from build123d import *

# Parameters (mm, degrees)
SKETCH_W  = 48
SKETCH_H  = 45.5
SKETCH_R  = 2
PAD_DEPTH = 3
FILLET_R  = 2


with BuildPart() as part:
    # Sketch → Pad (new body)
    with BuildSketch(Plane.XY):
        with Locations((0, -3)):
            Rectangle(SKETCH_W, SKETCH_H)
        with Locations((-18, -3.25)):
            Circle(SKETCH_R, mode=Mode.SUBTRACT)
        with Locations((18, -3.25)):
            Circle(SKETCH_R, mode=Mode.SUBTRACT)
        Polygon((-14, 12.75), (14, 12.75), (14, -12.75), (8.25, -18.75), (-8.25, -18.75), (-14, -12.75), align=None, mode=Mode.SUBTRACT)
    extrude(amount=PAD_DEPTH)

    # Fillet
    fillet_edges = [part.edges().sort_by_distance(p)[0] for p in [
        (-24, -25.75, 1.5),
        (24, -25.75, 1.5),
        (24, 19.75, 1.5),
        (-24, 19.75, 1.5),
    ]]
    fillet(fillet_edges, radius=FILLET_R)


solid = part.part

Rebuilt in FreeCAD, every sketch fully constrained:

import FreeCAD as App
import Part
import Sketcher


def edges_at(feature, points):
    """Names of the edges that pass closest to the given points."""
    edges = feature.Shape.Edges
    near = lambda p: min(range(len(edges)), key=lambda i: edges[i].distToShape(Part.Vertex(*p))[0])
    return sorted({f"Edge{near(p) + 1}" for p in points})


def add_polygon(sketch, points):
    """Adds a closed chain of lines whose ends are joined by coincident constraints."""
    first, n = sketch.GeometryCount, len(points)
    for a, b in zip(points, points[1:] + points[:1]):
        sketch.addGeometry(Part.LineSegment(App.Vector(*a, 0), App.Vector(*b, 0)), False)
    for i in range(n):
        sketch.addConstraint(Sketcher.Constraint("Coincident", first + i, 2, first + (i + 1) % n, 1))

doc = App.newDocument("Part")
body = doc.addObject("PartDesign::Body", "Body")

# Sketch on XY plane
sketch1 = doc.addObject("Sketcher::SketchObject", "Sketch")
body.addObject(sketch1)
sketch1.AttachmentSupport = (doc.XY_Plane, [""])
sketch1.MapMode = "FlatFace"
add_polygon(sketch1, [(-24, 19.8), (-24, -25.8), (24, -25.8), (24, 19.8)])  # lines 0-3
sketch1.addGeometry(Part.Circle(App.Vector(-18, -3.2, 0), App.Vector(0, 0, 1), 2), False)  # 4
sketch1.addGeometry(Part.Circle(App.Vector(18, -3.2, 0), App.Vector(0, 0, 1), 2), False)  # 5
add_polygon(sketch1, [(-14, -12.8), (-14, 12.8), (14, 12.8), (14, -12.8), (8.2, -18.8), (-8.2, -18.8)])  # lines 6-11
sketch1.addConstraint(Sketcher.Constraint("Vertical", 0))
sketch1.addConstraint(Sketcher.Constraint("Horizontal", 1))
sketch1.addConstraint(Sketcher.Constraint("Vertical", 2))
sketch1.addConstraint(Sketcher.Constraint("Horizontal", 3))
sketch1.addConstraint(Sketcher.Constraint("Vertical", 6))
sketch1.addConstraint(Sketcher.Constraint("Horizontal", 7))
sketch1.addConstraint(Sketcher.Constraint("Vertical", 8))
sketch1.addConstraint(Sketcher.Constraint("Horizontal", 10))
sketch1.addConstraint(Sketcher.Constraint("Equal", 4, 5))
sketch1.addConstraint(Sketcher.Constraint("Symmetric", 6, 2, 8, 2, -1, 1))
sketch1.addConstraint(Sketcher.Constraint("Symmetric", 4, 3, 5, 3, -2))
sketch1.addConstraint(Sketcher.Constraint("Horizontal", 8, 2, 11, 2))
sketch1.addConstraint(Sketcher.Constraint("Equal", 9, 11))
sketch1.addConstraint(Sketcher.Constraint("Diameter", 4, 4.0))
sketch1.addConstraint(Sketcher.Constraint("DistanceX", 1, 1, 1, 2, 48.0))
sketch1.addConstraint(Sketcher.Constraint("DistanceX", 7, 1, 7, 2, 28.0))
sketch1.addConstraint(Sketcher.Constraint("DistanceX", 10, 2, 10, 1, 16.5))
sketch1.addConstraint(Sketcher.Constraint("DistanceY", 0, 2, 0, 1, 45.5))
sketch1.addConstraint(Sketcher.Constraint("DistanceY", 6, 1, 6, 2, 25.5))
sketch1.addConstraint(Sketcher.Constraint("DistanceX", 4, 3, -1, 1, 18.0))
sketch1.addConstraint(Sketcher.Constraint("DistanceX", 0, 2, -1, 1, 24.0))
sketch1.addConstraint(Sketcher.Constraint("DistanceY", 5, 3, 2, 2, 23.0))
sketch1.addConstraint(Sketcher.Constraint("DistanceY", 6, 2, 3, 2, 7.0))
sketch1.addConstraint(Sketcher.Constraint("DistanceY", 9, 2, 8, 2, 6.0))
pad1 = doc.addObject("PartDesign::Pad", "Pad")
body.addObject(pad1)
pad1.Profile = sketch1
pad1.Length = 3
doc.recompute()

fillet = doc.addObject("PartDesign::Fillet", "Fillet")
body.addObject(fillet)
fillet.Base = (pad1, edges_at(pad1, [
    (-24, -25.75, 1.5),
    (24, -25.75, 1.5),
    (24, 19.75, 1.5),
    (-24, 19.75, 1.5),
]))
fillet.Radius = 2

doc.recompute()
